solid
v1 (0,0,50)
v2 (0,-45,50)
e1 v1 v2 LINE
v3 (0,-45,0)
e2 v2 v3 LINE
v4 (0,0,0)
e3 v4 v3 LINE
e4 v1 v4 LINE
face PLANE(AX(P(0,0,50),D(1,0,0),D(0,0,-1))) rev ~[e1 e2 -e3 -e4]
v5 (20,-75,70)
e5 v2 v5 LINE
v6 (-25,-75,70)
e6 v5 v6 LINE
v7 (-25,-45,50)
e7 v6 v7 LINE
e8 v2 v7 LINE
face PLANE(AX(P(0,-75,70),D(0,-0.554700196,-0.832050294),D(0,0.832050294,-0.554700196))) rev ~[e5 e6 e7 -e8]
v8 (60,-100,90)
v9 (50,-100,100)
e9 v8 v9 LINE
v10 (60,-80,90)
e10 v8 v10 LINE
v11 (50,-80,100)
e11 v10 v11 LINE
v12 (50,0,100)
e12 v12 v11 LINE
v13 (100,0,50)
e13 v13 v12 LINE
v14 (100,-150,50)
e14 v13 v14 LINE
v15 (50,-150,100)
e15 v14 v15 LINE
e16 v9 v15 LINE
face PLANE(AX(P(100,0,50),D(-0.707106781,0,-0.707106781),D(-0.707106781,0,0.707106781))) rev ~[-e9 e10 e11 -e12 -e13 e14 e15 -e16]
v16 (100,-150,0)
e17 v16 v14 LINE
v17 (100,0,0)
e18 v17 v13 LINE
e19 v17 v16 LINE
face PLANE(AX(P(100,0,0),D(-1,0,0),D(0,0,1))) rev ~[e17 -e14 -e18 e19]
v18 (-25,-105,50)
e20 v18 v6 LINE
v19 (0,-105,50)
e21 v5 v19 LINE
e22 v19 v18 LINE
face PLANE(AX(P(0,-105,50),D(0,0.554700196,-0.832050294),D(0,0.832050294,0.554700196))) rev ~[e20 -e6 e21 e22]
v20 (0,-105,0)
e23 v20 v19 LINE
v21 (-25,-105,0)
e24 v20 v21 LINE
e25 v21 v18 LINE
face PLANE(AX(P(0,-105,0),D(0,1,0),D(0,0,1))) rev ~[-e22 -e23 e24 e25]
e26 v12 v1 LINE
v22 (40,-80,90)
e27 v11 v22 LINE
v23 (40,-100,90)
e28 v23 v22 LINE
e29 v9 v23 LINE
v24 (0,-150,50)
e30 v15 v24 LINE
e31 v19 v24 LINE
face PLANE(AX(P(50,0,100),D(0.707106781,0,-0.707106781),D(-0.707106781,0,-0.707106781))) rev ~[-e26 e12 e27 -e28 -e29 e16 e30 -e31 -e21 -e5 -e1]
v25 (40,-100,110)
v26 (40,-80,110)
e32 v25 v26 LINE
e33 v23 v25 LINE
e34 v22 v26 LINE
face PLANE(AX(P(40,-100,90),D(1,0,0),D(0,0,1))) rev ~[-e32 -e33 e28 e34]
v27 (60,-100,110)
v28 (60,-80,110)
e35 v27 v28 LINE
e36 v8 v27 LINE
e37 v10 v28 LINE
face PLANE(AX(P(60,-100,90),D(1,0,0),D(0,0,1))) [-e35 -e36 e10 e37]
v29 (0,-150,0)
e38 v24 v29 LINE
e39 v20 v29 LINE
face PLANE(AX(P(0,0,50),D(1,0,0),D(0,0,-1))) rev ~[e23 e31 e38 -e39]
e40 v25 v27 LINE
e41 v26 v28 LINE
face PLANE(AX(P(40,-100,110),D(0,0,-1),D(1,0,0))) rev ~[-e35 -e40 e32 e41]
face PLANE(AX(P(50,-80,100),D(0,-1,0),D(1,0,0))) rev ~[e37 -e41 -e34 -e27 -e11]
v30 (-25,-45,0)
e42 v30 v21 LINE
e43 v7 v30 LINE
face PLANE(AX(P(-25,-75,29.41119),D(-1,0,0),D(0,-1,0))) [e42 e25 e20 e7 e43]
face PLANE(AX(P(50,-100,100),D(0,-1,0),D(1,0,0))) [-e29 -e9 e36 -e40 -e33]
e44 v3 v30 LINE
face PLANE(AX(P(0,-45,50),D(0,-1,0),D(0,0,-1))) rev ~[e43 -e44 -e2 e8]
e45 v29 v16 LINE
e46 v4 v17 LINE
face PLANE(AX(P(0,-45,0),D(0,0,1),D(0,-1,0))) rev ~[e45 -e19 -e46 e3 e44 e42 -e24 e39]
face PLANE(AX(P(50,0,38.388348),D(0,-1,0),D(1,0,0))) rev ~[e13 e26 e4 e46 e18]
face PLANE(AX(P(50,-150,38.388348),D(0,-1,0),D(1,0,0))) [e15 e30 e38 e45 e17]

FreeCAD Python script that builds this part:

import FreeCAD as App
import Part
import Sketcher
from FreeCAD import Vector


def add_polygon(sketch, points):
    """Adds a closed chain of lines whose ends are joined by coincident constraints."""
    first, n = sketch.GeometryCount, len(points)
    for a, b in zip(points, points[1:] + points[:1]):
        sketch.addGeometry(Part.LineSegment(App.Vector(*a, 0), App.Vector(*b, 0)), False)
    for i in range(n):
        sketch.addConstraint(Sketcher.Constraint("Coincident", first + i, 2, first + (i + 1) % n, 1))

doc = App.newDocument("Part")
body = doc.addObject("PartDesign::Body", "Body")

sketch1 = body.newObject("Sketcher::SketchObject", "Sketch")
sketch1.AttachmentSupport = (doc.getObject("XZ_Plane"), [""])
sketch1.MapMode = "FlatFace"
add_polygon(sketch1, [(0, 50), (0, 0), (100, 0), (100, 50), (50, 100)])
sketch1.addConstraint([
    Sketcher.Constraint("Vertical", 0),
    Sketcher.Constraint("Horizontal", 1),
    Sketcher.Constraint("Vertical", 2),
    Sketcher.Constraint("Coincident", 0, 2, -1, 1),
    Sketcher.Constraint("Perpendicular", 3, 4),
    Sketcher.Constraint("Horizontal", 2, 2, 4, 2),
    Sketcher.Constraint("Equal", 3, 4),
    Sketcher.Constraint("DistanceX", 1, 1, 1, 2, 100.0),
    Sketcher.Constraint("DistanceY", 0, 2, 0, 1, 50.0),
])
pad1 = body.newObject("PartDesign::Pad", "Pad")
pad1.Profile = sketch1
pad1.Length = 150

sketch2 = body.newObject("Sketcher::SketchObject", "Sketch001")
sketch2.AttachmentSupport = (doc.getObject("YZ_Plane"), [""])
sketch2.MapMode = "FlatFace"
add_polygon(sketch2, [(-45, 50), (-45, 0), (-105, 0), (-105, 50), (-75, 70)])
sketch2.addConstraint([
    Sketcher.Constraint("Vertical", 0),
    Sketcher.Constraint("Horizontal", 1),
    Sketcher.Constraint("Vertical", 2),
    Sketcher.Constraint("PointOnObject", 0, 2, -1),
    Sketcher.Constraint("Horizontal", 2, 2, 4, 2),
    Sketcher.Constraint("Equal", 3, 4),
    Sketcher.Constraint("DistanceX", 1, 2, 1, 1, 60.0),
    Sketcher.Constraint("DistanceY", 0, 2, 0, 1, 50.0),
    Sketcher.Constraint("DistanceX", 0, 2, -1, 1, 45.0),
    Sketcher.Constraint("DistanceY", -1, 1, 3, 2, 70.0),
])
pad2 = body.newObject("PartDesign::Pad", "Pad001")
pad2.Profile = sketch2
pad2.Type = "TwoLengths"
pad2.Length = 25
pad2.Length2 = 25
pad2.Reversed = True

sketch3 = body.newObject("Sketcher::SketchObject", "Sketch002")
sketch3.AttachmentSupport = (doc.getObject("XZ_Plane"), [""])
sketch3.MapMode = "FlatFace"
sketch3.AttachmentOffset = App.Placement(Vector(0, 0, 100), App.Rotation())
add_polygon(sketch3, [(40, 110), (40, 90), (60, 90), (60, 110)])
sketch3.addConstraint([
    Sketcher.Constraint("Vertical", 0),
    Sketcher.Constraint("Horizontal", 1),
    Sketcher.Constraint("Vertical", 2),
    Sketcher.Constraint("Horizontal", 3),
    Sketcher.Constraint("Equal", 3, 0),
    Sketcher.Constraint("DistanceX", 1, 1, 1, 2, 20.0),
    Sketcher.Constraint("DistanceX", -1, 1, 0, 2, 40.0),
    Sketcher.Constraint("DistanceY", -1, 1, 0, 2, 90.0),
])
pad3 = body.newObject("PartDesign::Pad", "Pad002")
pad3.Profile = sketch3
pad3.Length = 20
pad3.Reversed = True

doc.recompute()
